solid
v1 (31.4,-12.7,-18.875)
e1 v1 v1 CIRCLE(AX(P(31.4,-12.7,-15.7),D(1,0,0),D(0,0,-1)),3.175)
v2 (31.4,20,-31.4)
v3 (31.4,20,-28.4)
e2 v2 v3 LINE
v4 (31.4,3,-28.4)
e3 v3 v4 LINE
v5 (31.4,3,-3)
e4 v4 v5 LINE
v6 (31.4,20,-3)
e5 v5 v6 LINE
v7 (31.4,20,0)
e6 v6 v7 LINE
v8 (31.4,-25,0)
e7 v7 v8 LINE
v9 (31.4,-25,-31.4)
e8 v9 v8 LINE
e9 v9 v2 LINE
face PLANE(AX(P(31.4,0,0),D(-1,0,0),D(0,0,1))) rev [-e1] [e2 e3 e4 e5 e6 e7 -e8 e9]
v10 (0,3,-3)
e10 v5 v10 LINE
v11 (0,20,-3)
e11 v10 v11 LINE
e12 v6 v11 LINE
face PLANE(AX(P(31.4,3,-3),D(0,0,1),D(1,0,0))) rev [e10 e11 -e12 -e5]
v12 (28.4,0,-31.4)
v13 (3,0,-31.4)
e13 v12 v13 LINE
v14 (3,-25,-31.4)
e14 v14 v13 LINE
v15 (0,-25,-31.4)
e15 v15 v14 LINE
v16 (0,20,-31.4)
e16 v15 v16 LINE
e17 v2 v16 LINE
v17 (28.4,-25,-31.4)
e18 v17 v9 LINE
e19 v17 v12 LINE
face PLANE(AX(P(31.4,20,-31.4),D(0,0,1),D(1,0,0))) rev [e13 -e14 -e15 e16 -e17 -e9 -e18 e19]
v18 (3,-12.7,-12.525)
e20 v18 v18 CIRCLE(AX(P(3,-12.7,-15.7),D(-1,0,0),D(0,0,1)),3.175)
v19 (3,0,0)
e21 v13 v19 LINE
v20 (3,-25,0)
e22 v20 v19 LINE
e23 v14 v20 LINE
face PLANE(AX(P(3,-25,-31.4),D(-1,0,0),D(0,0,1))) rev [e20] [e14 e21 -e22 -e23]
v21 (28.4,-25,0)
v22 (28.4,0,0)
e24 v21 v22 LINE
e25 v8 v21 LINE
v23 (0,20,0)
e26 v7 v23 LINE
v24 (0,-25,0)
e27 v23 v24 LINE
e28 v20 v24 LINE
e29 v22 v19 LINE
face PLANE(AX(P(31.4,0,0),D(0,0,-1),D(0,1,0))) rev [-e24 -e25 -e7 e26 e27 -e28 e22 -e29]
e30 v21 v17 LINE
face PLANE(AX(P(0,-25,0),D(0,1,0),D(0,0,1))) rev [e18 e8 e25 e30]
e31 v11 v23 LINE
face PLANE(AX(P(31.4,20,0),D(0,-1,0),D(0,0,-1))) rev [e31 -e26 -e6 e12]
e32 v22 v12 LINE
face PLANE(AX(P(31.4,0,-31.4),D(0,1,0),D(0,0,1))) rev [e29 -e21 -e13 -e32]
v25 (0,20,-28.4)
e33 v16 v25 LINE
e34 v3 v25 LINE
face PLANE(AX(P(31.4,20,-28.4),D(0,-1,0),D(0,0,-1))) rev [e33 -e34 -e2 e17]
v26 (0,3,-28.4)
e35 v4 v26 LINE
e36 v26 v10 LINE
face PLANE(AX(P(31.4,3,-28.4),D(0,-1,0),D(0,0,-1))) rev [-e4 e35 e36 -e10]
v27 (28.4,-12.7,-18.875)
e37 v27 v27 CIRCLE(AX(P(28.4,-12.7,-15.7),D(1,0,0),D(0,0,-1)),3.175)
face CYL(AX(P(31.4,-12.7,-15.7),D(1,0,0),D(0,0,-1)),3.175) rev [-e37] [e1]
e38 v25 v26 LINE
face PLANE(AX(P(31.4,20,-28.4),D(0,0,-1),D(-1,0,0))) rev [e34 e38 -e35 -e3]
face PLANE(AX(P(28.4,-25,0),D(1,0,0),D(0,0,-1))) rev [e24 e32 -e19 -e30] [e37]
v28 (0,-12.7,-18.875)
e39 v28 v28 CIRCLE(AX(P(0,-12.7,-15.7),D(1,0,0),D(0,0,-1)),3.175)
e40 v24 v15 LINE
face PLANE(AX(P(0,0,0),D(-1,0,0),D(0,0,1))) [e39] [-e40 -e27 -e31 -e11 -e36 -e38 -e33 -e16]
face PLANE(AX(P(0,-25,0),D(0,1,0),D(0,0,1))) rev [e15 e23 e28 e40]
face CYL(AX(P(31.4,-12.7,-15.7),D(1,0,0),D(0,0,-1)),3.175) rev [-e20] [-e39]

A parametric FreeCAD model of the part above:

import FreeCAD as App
import Part
import Sketcher
from FreeCAD import Vector
Q = App.Units.Quantity

doc = App.newDocument("Part")
body = doc.addObject("PartDesign::Body", "Body")

# Sketch on YZ plane
sketch1 = body.newObject("Sketcher::SketchObject", "Sketch")
sketch1.AttachmentSupport = (doc.getObject("YZ_Plane"), [""])
sketch1.MapMode = "FlatFace"
sketch1.addGeometry([
    Part.LineSegment(Vector(20, 0, 0), Vector(0, 0, 0)),  # 0
    Part.LineSegment(Vector(0, 0, 0), Vector(0, -31.4, 0)),  # 1
    Part.LineSegment(Vector(0, -31.4, 0), Vector(20, -31.4, 0)),  # 2
    Part.LineSegment(Vector(20, -31.4, 0), Vector(20, -28.4, 0)),  # 3
    Part.LineSegment(Vector(20, -28.4, 0), Vector(3, -28.4, 0)),  # 4
    Part.LineSegment(Vector(3, -28.4, 0), Vector(3, -3, 0)),  # 5
    Part.LineSegment(Vector(3, -3, 0), Vector(20, -3, 0)),  # 6
    Part.LineSegment(Vector(20, -3, 0), Vector(20, 0, 0)),  # 7
], False)
sketch1.addConstraint([
    Sketcher.Constraint("Coincident", 0, 2, 1, 1),
    Sketcher.Constraint("Coincident", 1, 2, 2, 1),
    Sketcher.Constraint("Coincident", 2, 2, 3, 1),
    Sketcher.Constraint("Coincident", 3, 2, 4, 1),
    Sketcher.Constraint("Coincident", 4, 2, 5, 1),
    Sketcher.Constraint("Coincident", 5, 2, 6, 1),
    Sketcher.Constraint("Coincident", 6, 2, 7, 1),
    Sketcher.Constraint("Coincident", 7, 2, 0, 1),
    Sketcher.Constraint("Horizontal", 0),
    Sketcher.Constraint("Vertical", 1),
    Sketcher.Constraint("Horizontal", 2),
    Sketcher.Constraint("Vertical", 3),
    Sketcher.Constraint("Horizontal", 4),
    Sketcher.Constraint("Vertical", 5),
    Sketcher.Constraint("Horizontal", 6),
    Sketcher.Constraint("Vertical", 7),
    Sketcher.Constraint("Coincident", 0, 2, -1, 1),
    Sketcher.Constraint("Vertical", 3, 2, 6, 2),
    Sketcher.Constraint("Equal", 3, 7),
    Sketcher.Constraint("DistanceX", 0, 2, 0, 1, Q("20 mm")),
    Sketcher.Constraint("DistanceX", 4, 2, 4, 1, Q("17 mm")),
    Sketcher.Constraint("DistanceY", 3, 1, 3, 2, Q("3 mm")),
    Sketcher.Constraint("DistanceY", 1, 2, 1, 1, Q("31.4 mm")),
])
pad1 = body.newObject("PartDesign::Pad", "Pad")
pad1.Profile = sketch1
pad1.Length = 31.4

# Sketch on XZ plane
sketch2 = body.newObject("Sketcher::SketchObject", "Sketch001")
sketch2.AttachmentSupport = (doc.getObject("XZ_Plane"), [""])
sketch2.MapMode = "FlatFace"
sketch2.addGeometry([
    Part.LineSegment(Vector(28.4, 0, 0), Vector(28.4, -31.4, 0)),  # 0
    Part.LineSegment(Vector(28.4, -31.4, 0), Vector(31.4, -31.4, 0)),  # 1
    Part.LineSegment(Vector(31.4, -31.4, 0), Vector(31.4, 0, 0)),  # 2
    Part.LineSegment(Vector(31.4, 0, 0), Vector(28.4, 0, 0)),  # 3
    Part.LineSegment(Vector(0, 0, 0), Vector(0, -31.4, 0)),  # 4
    Part.LineSegment(Vector(0, -31.4, 0), Vector(3, -31.4, 0)),  # 5
    Part.LineSegment(Vector(3, -31.4, 0), Vector(3, 0, 0)),  # 6
    Part.LineSegment(Vector(3, 0, 0), Vector(0, 0, 0)),  # 7
], False)
sketch2.addConstraint([
    Sketcher.Constraint("Coincident", 0, 2, 1, 1),
    Sketcher.Constraint("Coincident", 1, 2, 2, 1),
    Sketcher.Constraint("Coincident", 2, 2, 3, 1),
    Sketcher.Constraint("Coincident", 3, 2, 0, 1),
    Sketcher.Constraint("Coincident", 4, 2, 5, 1),
    Sketcher.Constraint("Coincident", 5, 2, 6, 1),
    Sketcher.Constraint("Coincident", 6, 2, 7, 1),
    Sketcher.Constraint("Coincident", 7, 2, 4, 1),
    Sketcher.Constraint("Vertical", 0),
    Sketcher.Constraint("Horizontal", 1),
    Sketcher.Constraint("Vertical", 2),
    Sketcher.Constraint("Horizontal", 3),
    Sketcher.Constraint("Vertical", 4),
    Sketcher.Constraint("Horizontal", 5),
    Sketcher.Constraint("Vertical", 6),
    Sketcher.Constraint("Horizontal", 7),
    Sketcher.Constraint("Coincident", 7, 2, -1, 1),
    Sketcher.Constraint("PointOnObject", 2, 2, -1),
    Sketcher.Constraint("Horizontal", 1, 2, 4, 2),
    Sketcher.Constraint("Equal", 3, 5),
    Sketcher.Constraint("DistanceX", 1, 1, 1, 2, Q("3 mm")),
    Sketcher.Constraint("DistanceY", 0, 2, 0, 1, Q("31.4 mm")),
    Sketcher.Constraint("DistanceX", -1, 1, 0, 2, Q("28.4 mm")),
])
pad2 = body.newObject("PartDesign::Pad", "Pad001")
pad2.Profile = sketch2
pad2.Length = 25

# Sketch on YZ plane
sketch3 = body.newObject("Sketcher::SketchObject", "Sketch002")
sketch3.AttachmentSupport = (doc.getObject("YZ_Plane"), [""])
sketch3.MapMode = "FlatFace"
sketch3.AttachmentOffset = App.Placement(Vector(0, 0, 31.4), App.Rotation())
sketch3.addGeometry(Part.Circle(Vector(-12.7, -15.7, 0), Vector(0, 0, 1), 3.2), False)
sketch3.addConstraint([
    Sketcher.Constraint("Diameter", 0, Q("6.35 mm")),
    Sketcher.Constraint("DistanceX", 0, 3, -1, 1, Q("12.7 mm")),
    Sketcher.Constraint("DistanceY", 0, 3, -1, 1, Q("15.7 mm")),
])
doc.recompute()
hole = body.newObject("PartDesign::Hole", "Hole")
hole.Profile = sketch3
hole.ThreadType = "None"
hole.Diameter = 6.35
hole.DepthType = "ThroughAll"

doc.recompute()
